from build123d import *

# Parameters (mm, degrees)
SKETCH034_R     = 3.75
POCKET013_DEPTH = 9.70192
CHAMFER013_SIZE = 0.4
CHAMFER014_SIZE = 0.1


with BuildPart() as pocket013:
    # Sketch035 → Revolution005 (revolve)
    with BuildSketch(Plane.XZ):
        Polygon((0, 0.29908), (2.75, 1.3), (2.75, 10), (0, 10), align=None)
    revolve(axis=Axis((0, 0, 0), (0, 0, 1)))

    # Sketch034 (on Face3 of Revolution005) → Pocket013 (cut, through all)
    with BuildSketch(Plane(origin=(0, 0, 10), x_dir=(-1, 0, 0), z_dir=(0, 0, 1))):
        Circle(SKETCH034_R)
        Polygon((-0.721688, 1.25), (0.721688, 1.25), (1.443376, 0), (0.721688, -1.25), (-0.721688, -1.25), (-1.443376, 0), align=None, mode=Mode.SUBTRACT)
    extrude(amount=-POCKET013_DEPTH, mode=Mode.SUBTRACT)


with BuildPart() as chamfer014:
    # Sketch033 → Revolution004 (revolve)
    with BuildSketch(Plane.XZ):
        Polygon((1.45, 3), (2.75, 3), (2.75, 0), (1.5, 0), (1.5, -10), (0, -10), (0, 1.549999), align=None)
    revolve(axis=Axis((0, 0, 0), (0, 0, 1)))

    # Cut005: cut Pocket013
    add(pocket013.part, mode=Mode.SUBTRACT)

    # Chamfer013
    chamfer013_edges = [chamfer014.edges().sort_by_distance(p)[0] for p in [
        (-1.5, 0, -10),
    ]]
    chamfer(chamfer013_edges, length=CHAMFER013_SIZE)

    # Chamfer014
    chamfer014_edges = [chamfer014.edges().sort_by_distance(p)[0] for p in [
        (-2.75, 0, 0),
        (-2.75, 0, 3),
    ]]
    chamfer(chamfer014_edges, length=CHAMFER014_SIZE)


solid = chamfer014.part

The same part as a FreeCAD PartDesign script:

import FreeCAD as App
import Part
import Sketcher
Q = App.Units.Quantity


def edges_at(feature, points):
    """Names of the edges that pass closest to the given points."""
    edges = feature.Shape.Edges
    near = lambda p: min(range(len(edges)), key=lambda i: edges[i].distToShape(Part.Vertex(*p))[0])
    return sorted({f"Edge{near(p) + 1}" for p in points})


def add_polygon(sketch, points):
    """Adds a closed chain of lines whose ends are joined by coincident constraints."""
    first, n = sketch.GeometryCount, len(points)
    for a, b in zip(points, points[1:] + points[:1]):
        sketch.addGeometry(Part.LineSegment(App.Vector(*a, 0), App.Vector(*b, 0)), False)
    for i in range(n):
        sketch.addConstraint(Sketcher.Constraint("Coincident", first + i, 2, first + (i + 1) % n, 1))

doc = App.newDocument("Part")
body = doc.addObject("PartDesign::Body", "Body")

# Sketch on XZ plane
sketch1 = doc.addObject("Sketcher::SketchObject", "Sketch")
body.addObject(sketch1)
sketch1.AttachmentSupport = (doc.XZ_Plane, [""])
sketch1.MapMode = "FlatFace"
add_polygon(sketch1, [(0, 0.3), (2.8, 1.3), (2.8, 10), (0, 10)])  # lines 0-3
sketch1.addConstraint(Sketcher.Constraint("Vertical", 1))
sketch1.addConstraint(Sketcher.Constraint("Horizontal", 2))
sketch1.addConstraint(Sketcher.Constraint("Vertical", 3))
sketch1.addConstraint(Sketcher.Constraint("PointOnObject", 2, 2, -2))
sketch1.addConstraint(Sketcher.Constraint("DistanceY", 1, 1, 1, 2, Q("8.7 mm")))
sketch1.addConstraint(Sketcher.Constraint("DistanceY", -1, 1, 1, 2, Q("10 mm")))
sketch1.addConstraint(Sketcher.Constraint("DistanceX", 2, 2, 2, 1, Q("2.75 mm")))
sketch1.addConstraint(Sketcher.Constraint("DistanceY", 3, 2, 3, 1, Q("9.70092 mm")))
revolution = doc.addObject("PartDesign::Revolution", "Revolution")
body.addObject(revolution)
revolution.Profile = sketch1
revolution.ReferenceAxis = (sketch1, ["V_Axis"])
revolution.Angle = 360

# Sketch on XY plane
sketch2 = doc.addObject("Sketcher::SketchObject", "Sketch001")
body.addObject(sketch2)
sketch2.AttachmentSupport = (doc.XY_Plane, [""])
sketch2.MapMode = "FlatFace"
sketch2.AttachmentOffset = App.Placement(App.Vector(0, 0, 10), App.Rotation())
sketch2.addGeometry(Part.Circle(App.Vector(0, 0, 0), App.Vector(0, 0, 1), 3.8), False)  # 0
add_polygon(sketch2, [(1.4, 0), (0.7, -1.2), (-0.7, -1.2), (-1.4, 0), (-0.7, 1.2), (0.7, 1.2)])  # lines 1-6
sketch2.addConstraint(Sketcher.Constraint("Horizontal", 2))
sketch2.addConstraint(Sketcher.Constraint("Horizontal", 5))
sketch2.addConstraint(Sketcher.Constraint("Coincident", 0, 3, -1, 1))
sketch2.addConstraint(Sketcher.Constraint("Symmetric", 1, 2, 4, 2, -1, 1))
sketch2.addConstraint(Sketcher.Constraint("Symmetric", 3, 2, 6, 2, -1, 1))
sketch2.addConstraint(Sketcher.Constraint("PointOnObject", 3, 2, -1))
sketch2.addConstraint(Sketcher.Constraint("Parallel", 3, 6))
sketch2.addConstraint(Sketcher.Constraint("Vertical", 2, 2, 4, 2))
sketch2.addConstraint(Sketcher.Constraint("Diameter", 0, Q("7.5 mm")))
sketch2.addConstraint(Sketcher.Constraint("Angle", 1, Q("-120.000006 deg")))
sketch2.addConstraint(Sketcher.Constraint("DistanceY", 2, 2, 4, 2, Q("2.5 mm")))
sketch2.addConstraint(Sketcher.Constraint("DistanceX", 2, 2, 2, 1, Q("1.443376 mm")))
pocket1 = doc.addObject("PartDesign::Pocket", "Pocket")
body.addObject(pocket1)
pocket1.Profile = sketch2
pocket1.Type = "ThroughAll"
body2 = doc.addObject("PartDesign::Body", "Body001")

# Sketch on XZ plane
sketch3 = doc.addObject("Sketcher::SketchObject", "Sketch002")
body2.addObject(sketch3)
sketch3.AttachmentSupport = (doc.getObject("XZ_Plane001"), [""])
sketch3.MapMode = "FlatFace"
add_polygon(sketch3, [(2.8, 3), (1.4, 3), (0, 1.5), (0, -10), (1.5, -10), (1.5, 0), (2.8, 0)])  # lines 0-6
sketch3.addConstraint(Sketcher.Constraint("Horizontal", 0))
sketch3.addConstraint(Sketcher.Constraint("Vertical", 2))
sketch3.addConstraint(Sketcher.Constraint("Horizontal", 3))
sketch3.addConstraint(Sketcher.Constraint("Vertical", 4))
sketch3.addConstraint(Sketcher.Constraint("Horizontal", 5))
sketch3.addConstraint(Sketcher.Constraint("Vertical", 6))
sketch3.addConstraint(Sketcher.Constraint("PointOnObject", 1, 2, -2))
sketch3.addConstraint(Sketcher.Constraint("PointOnObject", 4, 2, -1))
sketch3.addConstraint(Sketcher.Constraint("DistanceY", 4, 1, 4, 2, Q("10 mm")))
sketch3.addConstraint(Sketcher.Constraint("DistanceY", 6, 1, 6, 2, Q("3 mm")))
sketch3.addConstraint(Sketcher.Constraint("Angle", 1, Q("-134.99998 deg")))
sketch3.addConstraint(Sketcher.Constraint("DistanceX", 0, 2, 0, 1, Q("1.3 mm")))
sketch3.addConstraint(Sketcher.Constraint("DistanceX", 3, 1, 3, 2, Q("1.5 mm")))
sketch3.addConstraint(Sketcher.Constraint("DistanceX", 5, 1, 5, 2, Q("1.25 mm")))
revolution2 = doc.addObject("PartDesign::Revolution", "Revolution001")
body2.addObject(revolution2)
revolution2.Profile = sketch3
revolution2.ReferenceAxis = (sketch3, ["V_Axis"])
revolution2.Angle = 360
doc.recompute()

boolean = doc.addObject("PartDesign::Boolean", "Boolean")
body2.addObject(boolean)
boolean.Type = "Cut"
boolean.addObjects([body])
doc.recompute()

chamfer = doc.addObject("PartDesign::Chamfer", "Chamfer")
body2.addObject(chamfer)
chamfer.Base = (boolean, edges_at(boolean, [(-1.5, 0, -10)]))
chamfer.Size = 0.4
doc.recompute()

chamfer2 = doc.addObject("PartDesign::Chamfer", "Chamfer001")
body2.addObject(chamfer2)
chamfer2.Base = (chamfer, edges_at(chamfer, [(-2.75, 0, 0), (-2.75, 0, 3)]))
chamfer2.Size = 0.1

doc.recompute()
